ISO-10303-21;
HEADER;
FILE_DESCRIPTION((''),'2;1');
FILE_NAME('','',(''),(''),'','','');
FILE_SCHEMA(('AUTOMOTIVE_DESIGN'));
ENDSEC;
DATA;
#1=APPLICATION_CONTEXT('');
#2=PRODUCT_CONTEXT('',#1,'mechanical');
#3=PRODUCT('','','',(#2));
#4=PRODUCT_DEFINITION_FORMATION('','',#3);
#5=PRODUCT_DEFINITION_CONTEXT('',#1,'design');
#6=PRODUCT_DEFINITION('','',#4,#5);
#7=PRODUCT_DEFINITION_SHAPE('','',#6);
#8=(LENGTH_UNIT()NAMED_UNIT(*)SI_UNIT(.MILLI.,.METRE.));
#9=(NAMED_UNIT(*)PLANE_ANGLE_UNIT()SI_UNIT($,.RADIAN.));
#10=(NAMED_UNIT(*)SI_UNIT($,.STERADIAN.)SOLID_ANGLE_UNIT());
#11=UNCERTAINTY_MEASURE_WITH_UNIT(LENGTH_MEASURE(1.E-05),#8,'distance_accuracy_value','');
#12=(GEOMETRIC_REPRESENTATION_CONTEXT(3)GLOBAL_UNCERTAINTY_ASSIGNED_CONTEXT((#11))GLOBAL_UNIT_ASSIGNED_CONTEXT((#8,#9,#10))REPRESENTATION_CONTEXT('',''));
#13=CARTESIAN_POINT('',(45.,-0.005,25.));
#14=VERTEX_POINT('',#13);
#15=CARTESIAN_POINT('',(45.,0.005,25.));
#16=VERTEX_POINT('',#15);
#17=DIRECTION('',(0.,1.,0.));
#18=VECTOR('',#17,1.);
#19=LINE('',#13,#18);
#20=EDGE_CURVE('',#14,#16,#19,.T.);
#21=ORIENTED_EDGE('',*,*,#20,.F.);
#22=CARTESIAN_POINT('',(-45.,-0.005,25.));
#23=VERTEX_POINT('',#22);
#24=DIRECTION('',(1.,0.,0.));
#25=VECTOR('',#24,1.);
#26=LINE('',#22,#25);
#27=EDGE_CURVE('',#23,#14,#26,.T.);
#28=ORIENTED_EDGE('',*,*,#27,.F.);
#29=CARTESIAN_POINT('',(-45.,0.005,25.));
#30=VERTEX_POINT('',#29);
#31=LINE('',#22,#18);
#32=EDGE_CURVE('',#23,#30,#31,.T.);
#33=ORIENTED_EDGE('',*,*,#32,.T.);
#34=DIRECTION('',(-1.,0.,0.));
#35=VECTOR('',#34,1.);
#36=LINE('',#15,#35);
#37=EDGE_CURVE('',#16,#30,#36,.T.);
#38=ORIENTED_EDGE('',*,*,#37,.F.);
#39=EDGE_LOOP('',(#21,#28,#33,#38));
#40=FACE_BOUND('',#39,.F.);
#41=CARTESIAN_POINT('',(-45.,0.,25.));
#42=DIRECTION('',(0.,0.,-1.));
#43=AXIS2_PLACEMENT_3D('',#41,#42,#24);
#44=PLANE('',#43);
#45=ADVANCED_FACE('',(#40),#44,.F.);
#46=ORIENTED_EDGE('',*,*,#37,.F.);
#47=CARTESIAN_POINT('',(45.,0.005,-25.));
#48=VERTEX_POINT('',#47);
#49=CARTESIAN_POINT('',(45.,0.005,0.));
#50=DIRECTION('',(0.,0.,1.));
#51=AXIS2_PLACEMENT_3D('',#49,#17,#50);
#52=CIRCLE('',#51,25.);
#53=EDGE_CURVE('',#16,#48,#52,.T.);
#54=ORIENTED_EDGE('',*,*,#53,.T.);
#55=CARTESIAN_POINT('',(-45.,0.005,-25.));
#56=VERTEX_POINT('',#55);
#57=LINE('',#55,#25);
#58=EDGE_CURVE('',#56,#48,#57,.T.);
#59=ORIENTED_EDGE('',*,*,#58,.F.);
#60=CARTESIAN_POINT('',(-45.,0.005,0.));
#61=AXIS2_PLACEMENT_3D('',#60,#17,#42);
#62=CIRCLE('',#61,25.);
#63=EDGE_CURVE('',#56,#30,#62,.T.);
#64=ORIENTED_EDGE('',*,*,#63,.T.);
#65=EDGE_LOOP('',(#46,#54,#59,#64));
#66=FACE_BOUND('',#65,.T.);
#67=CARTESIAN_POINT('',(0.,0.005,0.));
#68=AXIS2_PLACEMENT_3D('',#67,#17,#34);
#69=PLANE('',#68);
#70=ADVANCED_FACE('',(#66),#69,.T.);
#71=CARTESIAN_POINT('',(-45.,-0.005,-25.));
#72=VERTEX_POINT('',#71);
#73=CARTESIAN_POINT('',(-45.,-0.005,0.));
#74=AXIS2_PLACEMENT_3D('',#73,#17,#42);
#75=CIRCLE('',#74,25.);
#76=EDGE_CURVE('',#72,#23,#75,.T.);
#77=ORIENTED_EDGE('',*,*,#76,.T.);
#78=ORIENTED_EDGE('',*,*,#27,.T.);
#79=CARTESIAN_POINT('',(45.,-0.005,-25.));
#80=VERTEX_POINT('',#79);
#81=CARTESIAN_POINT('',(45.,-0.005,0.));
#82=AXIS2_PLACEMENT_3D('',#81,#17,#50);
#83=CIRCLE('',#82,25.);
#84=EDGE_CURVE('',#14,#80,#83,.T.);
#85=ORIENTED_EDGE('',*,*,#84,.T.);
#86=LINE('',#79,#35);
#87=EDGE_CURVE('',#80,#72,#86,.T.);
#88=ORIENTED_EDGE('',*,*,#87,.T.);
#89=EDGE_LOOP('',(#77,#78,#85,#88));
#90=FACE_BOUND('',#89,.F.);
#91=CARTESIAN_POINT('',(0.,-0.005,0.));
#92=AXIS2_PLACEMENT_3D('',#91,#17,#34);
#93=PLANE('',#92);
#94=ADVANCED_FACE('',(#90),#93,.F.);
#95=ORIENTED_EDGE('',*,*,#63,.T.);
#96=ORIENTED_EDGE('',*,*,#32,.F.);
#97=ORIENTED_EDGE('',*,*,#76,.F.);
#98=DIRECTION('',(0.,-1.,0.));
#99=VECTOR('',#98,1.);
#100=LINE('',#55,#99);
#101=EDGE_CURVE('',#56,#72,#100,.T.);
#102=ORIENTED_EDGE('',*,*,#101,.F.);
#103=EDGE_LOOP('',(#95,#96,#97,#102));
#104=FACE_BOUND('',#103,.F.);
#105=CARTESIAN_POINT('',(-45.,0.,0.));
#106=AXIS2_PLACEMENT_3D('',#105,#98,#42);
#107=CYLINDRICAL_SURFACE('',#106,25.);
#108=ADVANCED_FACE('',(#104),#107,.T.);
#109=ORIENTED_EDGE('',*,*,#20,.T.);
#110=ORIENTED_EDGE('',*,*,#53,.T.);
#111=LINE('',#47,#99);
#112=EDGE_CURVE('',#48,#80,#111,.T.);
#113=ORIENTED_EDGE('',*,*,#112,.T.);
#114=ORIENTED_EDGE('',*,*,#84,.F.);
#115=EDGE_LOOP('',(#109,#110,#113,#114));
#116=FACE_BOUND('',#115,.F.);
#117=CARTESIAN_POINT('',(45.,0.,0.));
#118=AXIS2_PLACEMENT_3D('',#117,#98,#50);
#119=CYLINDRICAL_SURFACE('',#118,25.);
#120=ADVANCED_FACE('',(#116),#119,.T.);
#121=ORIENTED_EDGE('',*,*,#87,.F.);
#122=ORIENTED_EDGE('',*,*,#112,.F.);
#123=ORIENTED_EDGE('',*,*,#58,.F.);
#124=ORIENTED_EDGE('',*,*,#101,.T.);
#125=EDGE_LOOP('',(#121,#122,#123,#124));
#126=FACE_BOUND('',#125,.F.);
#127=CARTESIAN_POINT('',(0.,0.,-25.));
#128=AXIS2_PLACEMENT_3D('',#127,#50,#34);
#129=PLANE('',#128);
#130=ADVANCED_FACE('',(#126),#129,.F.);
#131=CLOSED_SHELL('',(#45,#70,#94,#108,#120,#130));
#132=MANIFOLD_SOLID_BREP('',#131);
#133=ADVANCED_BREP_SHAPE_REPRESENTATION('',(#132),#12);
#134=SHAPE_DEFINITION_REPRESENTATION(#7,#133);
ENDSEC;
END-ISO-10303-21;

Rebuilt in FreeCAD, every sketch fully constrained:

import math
import FreeCAD as App
import Part
import Sketcher
Q = App.Units.Quantity

doc = App.newDocument("Part")
params = doc.addObject("Spreadsheet::Sheet", "Params")
for row, (alias, value) in enumerate([
    ("sketch1_radius", "25 mm"),
    ("sketch1_width", "90 mm"),
    ("pad1_length", "0.01 mm"),
], start=1):
    params.set(f"A{row}", alias)
    params.set(f"B{row}", "=" + value)
    params.setAlias(f"B{row}", alias)

body = doc.addObject("PartDesign::Body", "Body")

# Sketch on XZ plane
sketch1 = body.newObject("Sketcher::SketchObject", "Sketch")
sketch1.AttachmentSupport = (doc.getObject("XZ_Plane"), [""])
sketch1.MapMode = "FlatFace"
sketch1.addGeometry([
    Part.ArcOfCircle(Part.Circle(App.Vector(-45, 0, 0), App.Vector(0, 0, 1), 25), math.radians(90), math.radians(270)),
    Part.LineSegment(App.Vector(-45, 25, 0), App.Vector(45, 25, 0)),
    Part.ArcOfCircle(Part.Circle(App.Vector(45, 0, 0), App.Vector(0, 0, 1), 25), math.radians(-90), math.radians(90)),
    Part.LineSegment(App.Vector(45, -25, 0), App.Vector(-45, -25, 0)),
], False)
sketch1.addConstraint([
    Sketcher.Constraint("Tangent", 0, 1, 1, 1),
    Sketcher.Constraint("Tangent", 1, 2, 2, 2),
    Sketcher.Constraint("Tangent", 2, 1, 3, 1),
    Sketcher.Constraint("Tangent", 3, 2, 0, 2),
    Sketcher.Constraint("Horizontal", 1),
    Sketcher.Constraint("Horizontal", 3),
    Sketcher.Constraint("Symmetric", 0, 3, 2, 3, -1, 1),
    Sketcher.Constraint("Radius", 0, Q("25 mm")),
    Sketcher.Constraint("DistanceX", 1, 1, 1, 2, Q("90 mm")),
])
sketch1.setExpression("Constraints[7]", "Params.sketch1_radius")
sketch1.setExpression("Constraints[8]", "Params.sketch1_width")
pad1 = body.newObject("PartDesign::Pad", "Pad")
pad1.Profile = sketch1
pad1.setExpression("Length", "Params.pad1_length")
pad1.Midplane = True

doc.recompute()
